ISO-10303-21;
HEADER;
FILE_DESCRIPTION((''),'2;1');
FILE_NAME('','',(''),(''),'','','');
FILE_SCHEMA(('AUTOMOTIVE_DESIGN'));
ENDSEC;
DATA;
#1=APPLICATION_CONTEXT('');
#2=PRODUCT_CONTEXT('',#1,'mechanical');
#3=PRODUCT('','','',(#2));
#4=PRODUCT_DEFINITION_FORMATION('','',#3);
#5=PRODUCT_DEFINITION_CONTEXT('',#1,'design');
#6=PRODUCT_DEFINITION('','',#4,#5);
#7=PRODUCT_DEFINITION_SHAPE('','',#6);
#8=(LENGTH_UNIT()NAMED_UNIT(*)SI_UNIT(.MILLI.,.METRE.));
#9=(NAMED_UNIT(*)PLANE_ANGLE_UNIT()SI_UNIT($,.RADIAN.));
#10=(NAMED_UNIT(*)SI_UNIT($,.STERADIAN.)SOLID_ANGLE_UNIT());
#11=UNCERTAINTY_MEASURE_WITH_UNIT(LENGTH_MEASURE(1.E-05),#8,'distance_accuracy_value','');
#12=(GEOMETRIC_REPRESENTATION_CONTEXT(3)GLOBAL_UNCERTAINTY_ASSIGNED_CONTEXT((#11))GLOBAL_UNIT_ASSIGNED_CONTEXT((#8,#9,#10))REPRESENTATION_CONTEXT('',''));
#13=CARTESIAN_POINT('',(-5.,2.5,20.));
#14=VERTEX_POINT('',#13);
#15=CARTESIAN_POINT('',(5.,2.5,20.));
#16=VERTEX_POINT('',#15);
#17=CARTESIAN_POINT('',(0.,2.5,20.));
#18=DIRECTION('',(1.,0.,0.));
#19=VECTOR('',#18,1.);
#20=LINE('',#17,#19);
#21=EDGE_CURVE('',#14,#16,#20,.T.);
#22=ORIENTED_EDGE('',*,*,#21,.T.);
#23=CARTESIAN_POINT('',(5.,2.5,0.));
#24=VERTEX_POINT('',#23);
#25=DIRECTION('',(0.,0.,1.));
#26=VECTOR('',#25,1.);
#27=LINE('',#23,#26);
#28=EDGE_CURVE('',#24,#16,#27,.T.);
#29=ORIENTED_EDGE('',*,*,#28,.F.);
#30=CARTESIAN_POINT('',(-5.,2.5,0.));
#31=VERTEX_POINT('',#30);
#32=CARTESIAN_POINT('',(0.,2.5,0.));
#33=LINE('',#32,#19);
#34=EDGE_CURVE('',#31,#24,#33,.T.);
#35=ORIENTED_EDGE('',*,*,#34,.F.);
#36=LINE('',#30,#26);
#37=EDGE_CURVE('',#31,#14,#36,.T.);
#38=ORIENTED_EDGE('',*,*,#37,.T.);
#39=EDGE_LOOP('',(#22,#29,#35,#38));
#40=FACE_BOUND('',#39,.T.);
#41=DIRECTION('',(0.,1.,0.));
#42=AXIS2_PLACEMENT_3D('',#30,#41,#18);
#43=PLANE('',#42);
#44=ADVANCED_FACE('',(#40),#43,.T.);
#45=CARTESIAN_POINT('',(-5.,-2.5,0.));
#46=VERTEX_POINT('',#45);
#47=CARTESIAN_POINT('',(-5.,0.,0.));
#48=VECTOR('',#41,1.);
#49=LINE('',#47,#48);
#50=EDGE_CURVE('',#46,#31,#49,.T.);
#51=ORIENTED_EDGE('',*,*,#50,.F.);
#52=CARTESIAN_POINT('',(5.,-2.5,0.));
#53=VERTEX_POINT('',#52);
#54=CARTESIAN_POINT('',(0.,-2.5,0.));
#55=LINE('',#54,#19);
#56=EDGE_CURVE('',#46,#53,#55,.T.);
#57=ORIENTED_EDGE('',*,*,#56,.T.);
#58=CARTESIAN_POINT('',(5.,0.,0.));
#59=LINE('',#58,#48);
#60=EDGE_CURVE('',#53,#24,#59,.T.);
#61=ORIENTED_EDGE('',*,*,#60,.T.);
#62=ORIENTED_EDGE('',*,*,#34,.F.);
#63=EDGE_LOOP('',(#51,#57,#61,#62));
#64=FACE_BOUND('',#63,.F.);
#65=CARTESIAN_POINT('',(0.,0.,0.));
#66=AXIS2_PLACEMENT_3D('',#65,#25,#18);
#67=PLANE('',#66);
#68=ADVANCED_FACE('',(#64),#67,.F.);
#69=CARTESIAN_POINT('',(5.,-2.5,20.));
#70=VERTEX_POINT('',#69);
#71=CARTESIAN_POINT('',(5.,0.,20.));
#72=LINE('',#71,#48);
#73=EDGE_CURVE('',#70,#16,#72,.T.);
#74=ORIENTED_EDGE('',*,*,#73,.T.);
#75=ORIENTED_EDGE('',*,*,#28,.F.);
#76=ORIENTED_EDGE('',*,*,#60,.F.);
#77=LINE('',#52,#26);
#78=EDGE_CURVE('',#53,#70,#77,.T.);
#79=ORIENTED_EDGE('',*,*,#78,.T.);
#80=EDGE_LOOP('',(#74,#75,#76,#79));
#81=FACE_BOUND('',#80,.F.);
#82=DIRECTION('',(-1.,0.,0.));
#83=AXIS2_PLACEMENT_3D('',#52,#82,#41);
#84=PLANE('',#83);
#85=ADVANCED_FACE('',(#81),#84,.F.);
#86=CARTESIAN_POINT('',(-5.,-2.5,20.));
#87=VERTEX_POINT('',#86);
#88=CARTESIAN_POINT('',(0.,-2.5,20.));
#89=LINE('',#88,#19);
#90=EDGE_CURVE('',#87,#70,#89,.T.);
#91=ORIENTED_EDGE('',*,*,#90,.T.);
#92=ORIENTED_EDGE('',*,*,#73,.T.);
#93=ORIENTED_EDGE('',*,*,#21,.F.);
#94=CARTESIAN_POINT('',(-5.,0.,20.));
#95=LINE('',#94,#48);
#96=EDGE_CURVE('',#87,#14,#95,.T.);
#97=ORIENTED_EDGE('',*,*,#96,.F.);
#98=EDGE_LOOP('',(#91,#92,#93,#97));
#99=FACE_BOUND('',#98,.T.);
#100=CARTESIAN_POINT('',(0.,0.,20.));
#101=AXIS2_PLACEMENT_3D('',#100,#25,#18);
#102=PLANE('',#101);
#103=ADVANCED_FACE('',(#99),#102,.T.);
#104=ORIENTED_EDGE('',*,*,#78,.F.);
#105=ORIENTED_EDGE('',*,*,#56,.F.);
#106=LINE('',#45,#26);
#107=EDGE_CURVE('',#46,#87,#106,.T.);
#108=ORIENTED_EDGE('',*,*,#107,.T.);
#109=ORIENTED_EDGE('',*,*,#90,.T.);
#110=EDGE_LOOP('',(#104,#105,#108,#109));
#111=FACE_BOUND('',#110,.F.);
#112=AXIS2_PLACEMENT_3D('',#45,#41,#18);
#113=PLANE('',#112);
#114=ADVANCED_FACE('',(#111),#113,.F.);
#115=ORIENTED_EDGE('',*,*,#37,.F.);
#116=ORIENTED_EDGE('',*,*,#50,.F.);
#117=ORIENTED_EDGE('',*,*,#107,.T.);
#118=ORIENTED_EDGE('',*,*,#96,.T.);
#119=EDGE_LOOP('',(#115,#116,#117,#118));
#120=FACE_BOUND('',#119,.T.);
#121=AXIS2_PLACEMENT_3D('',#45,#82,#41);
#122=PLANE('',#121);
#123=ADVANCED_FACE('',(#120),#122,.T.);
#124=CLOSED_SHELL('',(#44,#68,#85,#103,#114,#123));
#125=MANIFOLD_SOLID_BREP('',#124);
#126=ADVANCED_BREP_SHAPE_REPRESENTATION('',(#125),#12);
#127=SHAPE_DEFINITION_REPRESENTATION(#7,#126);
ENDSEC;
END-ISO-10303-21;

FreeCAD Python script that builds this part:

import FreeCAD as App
import Part
import Sketcher


def add_polygon(sketch, points):
    """Adds a closed chain of lines whose ends are joined by coincident constraints."""
    first, n = sketch.GeometryCount, len(points)
    for a, b in zip(points, points[1:] + points[:1]):
        sketch.addGeometry(Part.LineSegment(App.Vector(*a, 0), App.Vector(*b, 0)), False)
    for i in range(n):
        sketch.addConstraint(Sketcher.Constraint("Coincident", first + i, 2, first + (i + 1) % n, 1))

doc = App.newDocument("Part")
body = doc.addObject("PartDesign::Body", "Body")

# Sketch on XY plane
sketch1 = body.newObject("Sketcher::SketchObject", "Sketch")
sketch1.AttachmentSupport = (doc.getObject("XY_Plane"), [""])
sketch1.MapMode = "FlatFace"
add_polygon(sketch1, [(-5, 2), (-5, -2), (5, -2), (5, 2)])  # lines 0-3
sketch1.addConstraint([
    Sketcher.Constraint("Vertical", 0),
    Sketcher.Constraint("Horizontal", 1),
    Sketcher.Constraint("Vertical", 2),
    Sketcher.Constraint("Horizontal", 3),
    Sketcher.Constraint("Symmetric", 0, 2, 2, 2, -1, 1),
    Sketcher.Constraint("DistanceX", 1, 1, 1, 2, 10.0),
    Sketcher.Constraint("DistanceY", 0, 2, 0, 1, 5.0),
])
pad1 = body.newObject("PartDesign::Pad", "Pad")
pad1.Profile = sketch1
pad1.Length = 20

doc.recompute()
